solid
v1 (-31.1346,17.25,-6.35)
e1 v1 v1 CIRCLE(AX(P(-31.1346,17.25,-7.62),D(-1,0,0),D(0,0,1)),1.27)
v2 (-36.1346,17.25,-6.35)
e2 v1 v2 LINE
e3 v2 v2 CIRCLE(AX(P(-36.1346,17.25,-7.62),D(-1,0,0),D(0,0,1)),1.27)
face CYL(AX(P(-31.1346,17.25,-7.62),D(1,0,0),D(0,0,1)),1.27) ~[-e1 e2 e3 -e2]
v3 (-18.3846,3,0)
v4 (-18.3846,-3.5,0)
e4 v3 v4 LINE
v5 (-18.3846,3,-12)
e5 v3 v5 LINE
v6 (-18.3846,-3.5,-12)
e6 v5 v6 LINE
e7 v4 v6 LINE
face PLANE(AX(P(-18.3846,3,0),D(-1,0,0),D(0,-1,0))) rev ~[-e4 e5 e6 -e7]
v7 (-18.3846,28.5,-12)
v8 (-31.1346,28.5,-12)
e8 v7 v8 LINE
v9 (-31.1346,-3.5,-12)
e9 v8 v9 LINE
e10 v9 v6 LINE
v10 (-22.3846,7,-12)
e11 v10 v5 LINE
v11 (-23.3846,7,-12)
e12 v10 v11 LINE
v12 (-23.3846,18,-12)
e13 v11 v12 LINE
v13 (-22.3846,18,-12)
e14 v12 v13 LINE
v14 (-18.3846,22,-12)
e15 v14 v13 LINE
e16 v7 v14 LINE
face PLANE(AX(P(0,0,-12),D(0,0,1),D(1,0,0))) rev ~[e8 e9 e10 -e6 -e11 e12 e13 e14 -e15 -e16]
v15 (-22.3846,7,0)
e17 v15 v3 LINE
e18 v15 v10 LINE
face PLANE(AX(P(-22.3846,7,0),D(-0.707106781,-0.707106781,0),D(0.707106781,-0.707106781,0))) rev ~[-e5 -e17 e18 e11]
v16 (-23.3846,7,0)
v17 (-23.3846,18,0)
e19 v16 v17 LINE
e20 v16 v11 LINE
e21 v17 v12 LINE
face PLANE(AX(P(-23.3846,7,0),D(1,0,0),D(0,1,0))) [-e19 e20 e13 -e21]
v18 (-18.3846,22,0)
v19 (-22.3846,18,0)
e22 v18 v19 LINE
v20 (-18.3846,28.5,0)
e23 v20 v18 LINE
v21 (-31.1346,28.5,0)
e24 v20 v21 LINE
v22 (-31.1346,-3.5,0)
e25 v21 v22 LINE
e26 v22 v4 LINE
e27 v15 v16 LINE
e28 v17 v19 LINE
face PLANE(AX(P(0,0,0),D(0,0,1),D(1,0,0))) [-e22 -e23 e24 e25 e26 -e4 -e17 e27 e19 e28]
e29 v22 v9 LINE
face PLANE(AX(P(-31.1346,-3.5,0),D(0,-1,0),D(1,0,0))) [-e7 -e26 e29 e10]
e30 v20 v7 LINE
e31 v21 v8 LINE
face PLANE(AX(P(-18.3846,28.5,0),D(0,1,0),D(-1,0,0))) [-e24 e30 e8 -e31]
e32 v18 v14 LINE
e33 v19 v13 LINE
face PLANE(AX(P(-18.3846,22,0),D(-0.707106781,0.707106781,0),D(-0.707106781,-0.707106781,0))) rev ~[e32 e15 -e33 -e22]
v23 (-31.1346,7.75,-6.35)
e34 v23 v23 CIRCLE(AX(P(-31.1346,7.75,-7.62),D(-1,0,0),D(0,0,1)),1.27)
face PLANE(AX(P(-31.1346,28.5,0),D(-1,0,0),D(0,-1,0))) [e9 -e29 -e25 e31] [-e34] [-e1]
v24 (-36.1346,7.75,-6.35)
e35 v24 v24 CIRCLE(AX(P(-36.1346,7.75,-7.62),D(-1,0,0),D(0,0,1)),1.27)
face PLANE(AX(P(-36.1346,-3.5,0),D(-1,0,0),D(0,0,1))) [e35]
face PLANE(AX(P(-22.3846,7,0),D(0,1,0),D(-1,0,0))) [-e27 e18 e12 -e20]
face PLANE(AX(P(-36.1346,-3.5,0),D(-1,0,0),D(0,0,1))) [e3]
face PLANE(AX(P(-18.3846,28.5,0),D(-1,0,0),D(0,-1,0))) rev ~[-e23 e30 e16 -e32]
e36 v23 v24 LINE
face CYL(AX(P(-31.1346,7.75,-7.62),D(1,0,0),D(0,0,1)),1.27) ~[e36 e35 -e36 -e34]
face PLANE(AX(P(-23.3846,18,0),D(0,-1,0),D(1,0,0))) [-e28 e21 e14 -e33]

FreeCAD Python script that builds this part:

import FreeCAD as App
import Part
import Sketcher

doc = App.newDocument("Part")
body = doc.addObject("PartDesign::Body", "Body")

sketch1 = body.newObject("Sketcher::SketchObject", "Sketch")
sketch1.AttachmentSupport = (doc.getObject("XY_Plane"), [""])
sketch1.MapMode = "FlatFace"
sketch1.addGeometry([
    Part.LineSegment(App.Vector(-18.4, 22, 0), App.Vector(-18.4, 28.5, 0)),
    Part.LineSegment(App.Vector(-18.4, 28.5, 0), App.Vector(-31.1, 28.5, 0)),
    Part.LineSegment(App.Vector(-31.1, 28.5, 0), App.Vector(-31.1, -3.5, 0)),
    Part.LineSegment(App.Vector(-31.1, -3.5, 0), App.Vector(-18.4, -3.5, 0)),
    Part.LineSegment(App.Vector(-18.4, -3.5, 0), App.Vector(-18.4, 3, 0)),
    Part.LineSegment(App.Vector(-18.4, 3, 0), App.Vector(-22.4, 7, 0)),
    Part.LineSegment(App.Vector(-22.4, 7, 0), App.Vector(-23.4, 7, 0)),
    Part.LineSegment(App.Vector(-23.4, 7, 0), App.Vector(-23.4, 18, 0)),
    Part.LineSegment(App.Vector(-23.4, 18, 0), App.Vector(-22.4, 18, 0)),
    Part.LineSegment(App.Vector(-22.4, 18, 0), App.Vector(-18.4, 22, 0)),
], False)
sketch1.addConstraint([
    Sketcher.Constraint("Coincident", 0, 2, 1, 1),
    Sketcher.Constraint("Coincident", 1, 2, 2, 1),
    Sketcher.Constraint("Coincident", 2, 2, 3, 1),
    Sketcher.Constraint("Coincident", 3, 2, 4, 1),
    Sketcher.Constraint("Coincident", 4, 2, 5, 1),
    Sketcher.Constraint("Coincident", 5, 2, 6, 1),
    Sketcher.Constraint("Coincident", 6, 2, 7, 1),
    Sketcher.Constraint("Coincident", 7, 2, 8, 1),
    Sketcher.Constraint("Coincident", 8, 2, 9, 1),
    Sketcher.Constraint("Coincident", 9, 2, 0, 1),
    Sketcher.Constraint("Vertical", 0),
    Sketcher.Constraint("Horizontal", 1),
    Sketcher.Constraint("Vertical", 2),
    Sketcher.Constraint("Horizontal", 3),
    Sketcher.Constraint("Vertical", 4),
    Sketcher.Constraint("Horizontal", 6),
    Sketcher.Constraint("Vertical", 7),
    Sketcher.Constraint("Horizontal", 8),
    Sketcher.Constraint("Perpendicular", 5, 9),
    Sketcher.Constraint("Vertical", 0, 2, 3, 2),
    Sketcher.Constraint("Vertical", 5, 2, 8, 2),
    Sketcher.Constraint("Equal", 0, 4),
    Sketcher.Constraint("Equal", 5, 9),
    Sketcher.Constraint("DistanceX", 6, 2, 6, 1, 1.0),
    Sketcher.Constraint("DistanceY", 2, 2, 2, 1, 32.0),
    Sketcher.Constraint("DistanceY", 7, 1, 7, 2, 11.0),
    Sketcher.Constraint("DistanceX", 1, 2, 1, 1, 12.75),
    Sketcher.Constraint("DistanceX", 2, 2, 5, 2, 8.75),
    Sketcher.Constraint("DistanceY", -1, 1, 4, 2, 3.0),
    Sketcher.Constraint("DistanceX", 0, 2, -1, 1, 18.3846),
])
pad1 = body.newObject("PartDesign::Pad", "Pad")
pad1.Profile = sketch1
pad1.Length = 12
pad1.Reversed = True

sketch2 = body.newObject("Sketcher::SketchObject", "Sketch001")
sketch2.AttachmentSupport = (doc.getObject("YZ_Plane"), [""])
sketch2.MapMode = "FlatFace"
sketch2.AttachmentOffset = App.Placement(App.Vector(0, 0, -31.1346), App.Rotation())
sketch2.addGeometry([
    Part.Circle(App.Vector(7.8, -7.6, 0), App.Vector(0, 0, 1), 1.3),
    Part.Circle(App.Vector(17.2, -7.6, 0), App.Vector(0, 0, 1), 1.3),
], False)
sketch2.addConstraint([
    Sketcher.Constraint("Equal", 0, 1),
    Sketcher.Constraint("Horizontal", 0, 3, 1, 3),
    Sketcher.Constraint("Diameter", 0, 2.54),
    Sketcher.Constraint("DistanceX", 0, 3, 1, 3, 9.5),
    Sketcher.Constraint("DistanceY", 0, 3, -1, 1, 7.62),
    Sketcher.Constraint("DistanceX", -1, 1, 0, 3, 7.75),
])
pad2 = body.newObject("PartDesign::Pad", "Pad001")
pad2.Profile = sketch2
pad2.Length = 5
pad2.Reversed = True

doc.recompute()
